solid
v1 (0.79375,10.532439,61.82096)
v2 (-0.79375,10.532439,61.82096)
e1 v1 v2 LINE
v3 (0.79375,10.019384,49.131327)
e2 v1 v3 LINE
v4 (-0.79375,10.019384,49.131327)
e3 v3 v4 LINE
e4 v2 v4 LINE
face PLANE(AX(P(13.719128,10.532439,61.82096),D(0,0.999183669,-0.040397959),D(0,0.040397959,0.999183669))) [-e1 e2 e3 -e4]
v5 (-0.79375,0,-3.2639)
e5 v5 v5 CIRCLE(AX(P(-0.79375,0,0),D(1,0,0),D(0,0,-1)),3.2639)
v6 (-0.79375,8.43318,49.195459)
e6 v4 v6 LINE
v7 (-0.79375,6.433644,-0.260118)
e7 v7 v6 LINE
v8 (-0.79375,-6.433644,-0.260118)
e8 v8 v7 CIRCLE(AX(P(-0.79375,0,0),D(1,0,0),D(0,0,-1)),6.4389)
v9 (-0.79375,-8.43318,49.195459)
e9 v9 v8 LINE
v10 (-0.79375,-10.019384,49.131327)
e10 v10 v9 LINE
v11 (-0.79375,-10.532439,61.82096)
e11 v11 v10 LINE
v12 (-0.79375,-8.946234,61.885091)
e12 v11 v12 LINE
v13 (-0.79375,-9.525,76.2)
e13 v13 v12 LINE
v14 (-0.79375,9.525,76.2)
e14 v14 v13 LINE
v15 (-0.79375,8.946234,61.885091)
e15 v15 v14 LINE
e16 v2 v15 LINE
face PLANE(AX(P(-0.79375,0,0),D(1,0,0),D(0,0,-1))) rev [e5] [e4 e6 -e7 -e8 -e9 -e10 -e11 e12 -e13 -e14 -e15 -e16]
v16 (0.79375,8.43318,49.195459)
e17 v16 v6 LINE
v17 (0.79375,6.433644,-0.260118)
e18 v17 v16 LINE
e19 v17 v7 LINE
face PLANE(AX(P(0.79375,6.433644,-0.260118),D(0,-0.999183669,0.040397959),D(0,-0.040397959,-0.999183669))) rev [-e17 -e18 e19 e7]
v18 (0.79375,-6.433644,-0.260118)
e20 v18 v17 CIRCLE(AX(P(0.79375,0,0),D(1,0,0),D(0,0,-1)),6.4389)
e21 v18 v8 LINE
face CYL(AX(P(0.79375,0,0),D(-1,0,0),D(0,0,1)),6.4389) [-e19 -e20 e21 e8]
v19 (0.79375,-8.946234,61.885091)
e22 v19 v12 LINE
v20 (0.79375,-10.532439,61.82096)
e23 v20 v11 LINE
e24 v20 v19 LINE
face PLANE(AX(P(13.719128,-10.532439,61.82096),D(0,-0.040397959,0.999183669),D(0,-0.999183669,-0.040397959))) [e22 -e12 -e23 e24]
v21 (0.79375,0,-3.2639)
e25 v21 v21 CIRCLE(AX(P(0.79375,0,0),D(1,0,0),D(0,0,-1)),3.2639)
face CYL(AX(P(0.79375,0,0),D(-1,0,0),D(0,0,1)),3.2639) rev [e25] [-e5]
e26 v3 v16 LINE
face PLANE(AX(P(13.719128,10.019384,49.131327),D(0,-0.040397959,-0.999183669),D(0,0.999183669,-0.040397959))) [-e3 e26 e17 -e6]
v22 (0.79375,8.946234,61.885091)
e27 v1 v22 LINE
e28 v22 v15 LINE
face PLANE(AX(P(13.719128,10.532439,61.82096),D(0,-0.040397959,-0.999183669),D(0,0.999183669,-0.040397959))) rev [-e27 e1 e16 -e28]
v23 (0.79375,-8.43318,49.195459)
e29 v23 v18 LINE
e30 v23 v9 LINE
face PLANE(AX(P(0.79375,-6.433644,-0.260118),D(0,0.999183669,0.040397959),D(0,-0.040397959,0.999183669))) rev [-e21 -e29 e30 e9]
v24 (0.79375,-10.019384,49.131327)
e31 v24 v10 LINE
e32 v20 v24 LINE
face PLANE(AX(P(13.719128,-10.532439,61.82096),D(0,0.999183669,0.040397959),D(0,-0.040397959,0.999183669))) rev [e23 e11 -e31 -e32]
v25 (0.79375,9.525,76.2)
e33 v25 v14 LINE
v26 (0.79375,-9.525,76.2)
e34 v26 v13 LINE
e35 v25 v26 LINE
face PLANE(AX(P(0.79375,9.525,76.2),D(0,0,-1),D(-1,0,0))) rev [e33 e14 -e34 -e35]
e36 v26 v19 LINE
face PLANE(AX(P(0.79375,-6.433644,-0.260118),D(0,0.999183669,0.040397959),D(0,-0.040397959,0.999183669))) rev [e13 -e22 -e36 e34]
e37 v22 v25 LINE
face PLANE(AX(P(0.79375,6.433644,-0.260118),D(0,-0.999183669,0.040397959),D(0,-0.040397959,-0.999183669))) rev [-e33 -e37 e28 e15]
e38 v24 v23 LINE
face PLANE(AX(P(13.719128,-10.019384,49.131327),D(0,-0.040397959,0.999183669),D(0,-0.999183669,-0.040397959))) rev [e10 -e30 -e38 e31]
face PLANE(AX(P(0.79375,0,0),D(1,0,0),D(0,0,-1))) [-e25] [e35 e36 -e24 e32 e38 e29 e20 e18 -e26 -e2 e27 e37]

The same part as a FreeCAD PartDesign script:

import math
import FreeCAD as App
import Part
import Sketcher

V = App.Vector
Q = App.Units.Quantity

doc = App.newDocument("Part")
body = doc.addObject("PartDesign::Body", "Body")

# Sketch on YZ plane
sketch1 = body.newObject("Sketcher::SketchObject", "Sketch")
sketch1.AttachmentSupport = (doc.getObject("YZ_Plane"), [""])
sketch1.MapMode = "FlatFace"
sketch1.addGeometry(Part.LineSegment(V(9.5, 76.2, 0), V(-9.5, 76.2, 0)), False)
sketch1.addGeometry(Part.LineSegment(V(-9.5, 76.2, 0), V(-6.4, -0.3, 0)), False)
sketch1.addGeometry(Part.ArcOfCircle(Part.Circle(V(0, 0, 0), V(0, 0, 1), 6.4), math.radians(-178), math.radians(-2)), False)
sketch1.addGeometry(Part.LineSegment(V(6.4, -0.3, 0), V(9.5, 76.2, 0)), False)
sketch1.addGeometry(Part.Circle(V(0, 0, 0), V(0, 0, 1), 3.3), False)
sketch1.addConstraint(Sketcher.Constraint("Coincident", 0, 2, 1, 1))
sketch1.addConstraint(Sketcher.Constraint("Tangent", 1, 2, 2, 1))
sketch1.addConstraint(Sketcher.Constraint("Tangent", 2, 2, 3, 1))
sketch1.addConstraint(Sketcher.Constraint("Coincident", 3, 2, 0, 1))
sketch1.addConstraint(Sketcher.Constraint("Horizontal", 0))
sketch1.addConstraint(Sketcher.Constraint("Coincident", 2, 3, -1, 1))
sketch1.addConstraint(Sketcher.Constraint("Coincident", 4, 3, -1, 1))
sketch1.addConstraint(Sketcher.Constraint("Horizontal", 1, 2, 2, 2))
sketch1.addConstraint(Sketcher.Constraint("Diameter", 4, Q("0.257 in")))
sketch1.addConstraint(Sketcher.Constraint("DistanceY", -1, 1, 0, 2, Q("3 in")))
sketch1.addConstraint(Sketcher.Constraint("DistanceX", 0, 2, 0, 1, Q("0.75 in")))
sketch1.addConstraint(Sketcher.Constraint("Radius", 2, Q("0.2535 in")))
pad1 = body.newObject("PartDesign::Pad", "Pad")
pad1.Profile = sketch1
pad1.Length = Q("0.0625 in")
pad1.Midplane = True

# Sketch on YZ plane
sketch2 = body.newObject("Sketcher::SketchObject", "Sketch001")
sketch2.AttachmentSupport = (doc.getObject("YZ_Plane"), [""])
sketch2.MapMode = "FlatFace"
sketch2.AttachmentOffset = App.Placement(V(0, 0, -0.03125 * 25.4), App.Rotation())
sketch2.addGeometry(Part.LineSegment(V(-8.9, 61.9, 0), V(-8.4, 49.2, 0)), False)
sketch2.addGeometry(Part.LineSegment(V(-8.4, 49.2, 0), V(-10, 49.1, 0)), False)
sketch2.addGeometry(Part.LineSegment(V(-10, 49.1, 0), V(-10.5, 61.8, 0)), False)
sketch2.addGeometry(Part.LineSegment(V(-10.5, 61.8, 0), V(-8.9, 61.9, 0)), False)
sketch2.addGeometry(Part.LineSegment(V(10, 49.1, 0), V(8.4, 49.2, 0)), False)
sketch2.addGeometry(Part.LineSegment(V(8.4, 49.2, 0), V(8.9, 61.9, 0)), False)
sketch2.addGeometry(Part.LineSegment(V(8.9, 61.9, 0), V(10.5, 61.8, 0)), False)
sketch2.addGeometry(Part.LineSegment(V(10.5, 61.8, 0), V(10, 49.1, 0)), False)
sketch2.addConstraint(Sketcher.Constraint("Coincident", 0, 2, 1, 1))
sketch2.addConstraint(Sketcher.Constraint("Coincident", 1, 2, 2, 1))
sketch2.addConstraint(Sketcher.Constraint("Coincident", 2, 2, 3, 1))
sketch2.addConstraint(Sketcher.Constraint("Coincident", 3, 2, 0, 1))
sketch2.addConstraint(Sketcher.Constraint("Coincident", 4, 2, 5, 1))
sketch2.addConstraint(Sketcher.Constraint("Coincident", 5, 2, 6, 1))
sketch2.addConstraint(Sketcher.Constraint("Coincident", 6, 2, 7, 1))
sketch2.addConstraint(Sketcher.Constraint("Coincident", 7, 2, 4, 1))
sketch2.addConstraint(Sketcher.Constraint("Symmetric", 0, 2, 4, 2, -2))
sketch2.addConstraint(Sketcher.Constraint("Symmetric", 3, 2, 5, 2, -2))
sketch2.addConstraint(Sketcher.Constraint("Symmetric", 2, 2, 6, 2, -2))
sketch2.addConstraint(Sketcher.Constraint("Symmetric", 1, 2, 7, 2, -2))
sketch2.addConstraint(Sketcher.Constraint("Perpendicular", 0, 1))
sketch2.addConstraint(Sketcher.Constraint("Perpendicular", 1, 2))
sketch2.addConstraint(Sketcher.Constraint("Perpendicular", 2, 3))
sketch2.addConstraint(Sketcher.Constraint("Distance", 0, Q("0.5 in")))
sketch2.addConstraint(Sketcher.Constraint("Distance", 1, Q("0.0625 in")))
sketch2.addConstraint(Sketcher.Constraint("DistanceY", 0, 2, 2, 2, 12.625501))
sketch2.addConstraint(Sketcher.Constraint("DistanceX", 0, 2, -1, 1, 8.43318))
sketch2.addConstraint(Sketcher.Constraint("DistanceY", -1, 1, 0, 2, 49.195459))
pad2 = body.newObject("PartDesign::Pad", "Pad001")
pad2.Profile = sketch2
pad2.Length = Q("0.0625 in")

doc.recompute()
